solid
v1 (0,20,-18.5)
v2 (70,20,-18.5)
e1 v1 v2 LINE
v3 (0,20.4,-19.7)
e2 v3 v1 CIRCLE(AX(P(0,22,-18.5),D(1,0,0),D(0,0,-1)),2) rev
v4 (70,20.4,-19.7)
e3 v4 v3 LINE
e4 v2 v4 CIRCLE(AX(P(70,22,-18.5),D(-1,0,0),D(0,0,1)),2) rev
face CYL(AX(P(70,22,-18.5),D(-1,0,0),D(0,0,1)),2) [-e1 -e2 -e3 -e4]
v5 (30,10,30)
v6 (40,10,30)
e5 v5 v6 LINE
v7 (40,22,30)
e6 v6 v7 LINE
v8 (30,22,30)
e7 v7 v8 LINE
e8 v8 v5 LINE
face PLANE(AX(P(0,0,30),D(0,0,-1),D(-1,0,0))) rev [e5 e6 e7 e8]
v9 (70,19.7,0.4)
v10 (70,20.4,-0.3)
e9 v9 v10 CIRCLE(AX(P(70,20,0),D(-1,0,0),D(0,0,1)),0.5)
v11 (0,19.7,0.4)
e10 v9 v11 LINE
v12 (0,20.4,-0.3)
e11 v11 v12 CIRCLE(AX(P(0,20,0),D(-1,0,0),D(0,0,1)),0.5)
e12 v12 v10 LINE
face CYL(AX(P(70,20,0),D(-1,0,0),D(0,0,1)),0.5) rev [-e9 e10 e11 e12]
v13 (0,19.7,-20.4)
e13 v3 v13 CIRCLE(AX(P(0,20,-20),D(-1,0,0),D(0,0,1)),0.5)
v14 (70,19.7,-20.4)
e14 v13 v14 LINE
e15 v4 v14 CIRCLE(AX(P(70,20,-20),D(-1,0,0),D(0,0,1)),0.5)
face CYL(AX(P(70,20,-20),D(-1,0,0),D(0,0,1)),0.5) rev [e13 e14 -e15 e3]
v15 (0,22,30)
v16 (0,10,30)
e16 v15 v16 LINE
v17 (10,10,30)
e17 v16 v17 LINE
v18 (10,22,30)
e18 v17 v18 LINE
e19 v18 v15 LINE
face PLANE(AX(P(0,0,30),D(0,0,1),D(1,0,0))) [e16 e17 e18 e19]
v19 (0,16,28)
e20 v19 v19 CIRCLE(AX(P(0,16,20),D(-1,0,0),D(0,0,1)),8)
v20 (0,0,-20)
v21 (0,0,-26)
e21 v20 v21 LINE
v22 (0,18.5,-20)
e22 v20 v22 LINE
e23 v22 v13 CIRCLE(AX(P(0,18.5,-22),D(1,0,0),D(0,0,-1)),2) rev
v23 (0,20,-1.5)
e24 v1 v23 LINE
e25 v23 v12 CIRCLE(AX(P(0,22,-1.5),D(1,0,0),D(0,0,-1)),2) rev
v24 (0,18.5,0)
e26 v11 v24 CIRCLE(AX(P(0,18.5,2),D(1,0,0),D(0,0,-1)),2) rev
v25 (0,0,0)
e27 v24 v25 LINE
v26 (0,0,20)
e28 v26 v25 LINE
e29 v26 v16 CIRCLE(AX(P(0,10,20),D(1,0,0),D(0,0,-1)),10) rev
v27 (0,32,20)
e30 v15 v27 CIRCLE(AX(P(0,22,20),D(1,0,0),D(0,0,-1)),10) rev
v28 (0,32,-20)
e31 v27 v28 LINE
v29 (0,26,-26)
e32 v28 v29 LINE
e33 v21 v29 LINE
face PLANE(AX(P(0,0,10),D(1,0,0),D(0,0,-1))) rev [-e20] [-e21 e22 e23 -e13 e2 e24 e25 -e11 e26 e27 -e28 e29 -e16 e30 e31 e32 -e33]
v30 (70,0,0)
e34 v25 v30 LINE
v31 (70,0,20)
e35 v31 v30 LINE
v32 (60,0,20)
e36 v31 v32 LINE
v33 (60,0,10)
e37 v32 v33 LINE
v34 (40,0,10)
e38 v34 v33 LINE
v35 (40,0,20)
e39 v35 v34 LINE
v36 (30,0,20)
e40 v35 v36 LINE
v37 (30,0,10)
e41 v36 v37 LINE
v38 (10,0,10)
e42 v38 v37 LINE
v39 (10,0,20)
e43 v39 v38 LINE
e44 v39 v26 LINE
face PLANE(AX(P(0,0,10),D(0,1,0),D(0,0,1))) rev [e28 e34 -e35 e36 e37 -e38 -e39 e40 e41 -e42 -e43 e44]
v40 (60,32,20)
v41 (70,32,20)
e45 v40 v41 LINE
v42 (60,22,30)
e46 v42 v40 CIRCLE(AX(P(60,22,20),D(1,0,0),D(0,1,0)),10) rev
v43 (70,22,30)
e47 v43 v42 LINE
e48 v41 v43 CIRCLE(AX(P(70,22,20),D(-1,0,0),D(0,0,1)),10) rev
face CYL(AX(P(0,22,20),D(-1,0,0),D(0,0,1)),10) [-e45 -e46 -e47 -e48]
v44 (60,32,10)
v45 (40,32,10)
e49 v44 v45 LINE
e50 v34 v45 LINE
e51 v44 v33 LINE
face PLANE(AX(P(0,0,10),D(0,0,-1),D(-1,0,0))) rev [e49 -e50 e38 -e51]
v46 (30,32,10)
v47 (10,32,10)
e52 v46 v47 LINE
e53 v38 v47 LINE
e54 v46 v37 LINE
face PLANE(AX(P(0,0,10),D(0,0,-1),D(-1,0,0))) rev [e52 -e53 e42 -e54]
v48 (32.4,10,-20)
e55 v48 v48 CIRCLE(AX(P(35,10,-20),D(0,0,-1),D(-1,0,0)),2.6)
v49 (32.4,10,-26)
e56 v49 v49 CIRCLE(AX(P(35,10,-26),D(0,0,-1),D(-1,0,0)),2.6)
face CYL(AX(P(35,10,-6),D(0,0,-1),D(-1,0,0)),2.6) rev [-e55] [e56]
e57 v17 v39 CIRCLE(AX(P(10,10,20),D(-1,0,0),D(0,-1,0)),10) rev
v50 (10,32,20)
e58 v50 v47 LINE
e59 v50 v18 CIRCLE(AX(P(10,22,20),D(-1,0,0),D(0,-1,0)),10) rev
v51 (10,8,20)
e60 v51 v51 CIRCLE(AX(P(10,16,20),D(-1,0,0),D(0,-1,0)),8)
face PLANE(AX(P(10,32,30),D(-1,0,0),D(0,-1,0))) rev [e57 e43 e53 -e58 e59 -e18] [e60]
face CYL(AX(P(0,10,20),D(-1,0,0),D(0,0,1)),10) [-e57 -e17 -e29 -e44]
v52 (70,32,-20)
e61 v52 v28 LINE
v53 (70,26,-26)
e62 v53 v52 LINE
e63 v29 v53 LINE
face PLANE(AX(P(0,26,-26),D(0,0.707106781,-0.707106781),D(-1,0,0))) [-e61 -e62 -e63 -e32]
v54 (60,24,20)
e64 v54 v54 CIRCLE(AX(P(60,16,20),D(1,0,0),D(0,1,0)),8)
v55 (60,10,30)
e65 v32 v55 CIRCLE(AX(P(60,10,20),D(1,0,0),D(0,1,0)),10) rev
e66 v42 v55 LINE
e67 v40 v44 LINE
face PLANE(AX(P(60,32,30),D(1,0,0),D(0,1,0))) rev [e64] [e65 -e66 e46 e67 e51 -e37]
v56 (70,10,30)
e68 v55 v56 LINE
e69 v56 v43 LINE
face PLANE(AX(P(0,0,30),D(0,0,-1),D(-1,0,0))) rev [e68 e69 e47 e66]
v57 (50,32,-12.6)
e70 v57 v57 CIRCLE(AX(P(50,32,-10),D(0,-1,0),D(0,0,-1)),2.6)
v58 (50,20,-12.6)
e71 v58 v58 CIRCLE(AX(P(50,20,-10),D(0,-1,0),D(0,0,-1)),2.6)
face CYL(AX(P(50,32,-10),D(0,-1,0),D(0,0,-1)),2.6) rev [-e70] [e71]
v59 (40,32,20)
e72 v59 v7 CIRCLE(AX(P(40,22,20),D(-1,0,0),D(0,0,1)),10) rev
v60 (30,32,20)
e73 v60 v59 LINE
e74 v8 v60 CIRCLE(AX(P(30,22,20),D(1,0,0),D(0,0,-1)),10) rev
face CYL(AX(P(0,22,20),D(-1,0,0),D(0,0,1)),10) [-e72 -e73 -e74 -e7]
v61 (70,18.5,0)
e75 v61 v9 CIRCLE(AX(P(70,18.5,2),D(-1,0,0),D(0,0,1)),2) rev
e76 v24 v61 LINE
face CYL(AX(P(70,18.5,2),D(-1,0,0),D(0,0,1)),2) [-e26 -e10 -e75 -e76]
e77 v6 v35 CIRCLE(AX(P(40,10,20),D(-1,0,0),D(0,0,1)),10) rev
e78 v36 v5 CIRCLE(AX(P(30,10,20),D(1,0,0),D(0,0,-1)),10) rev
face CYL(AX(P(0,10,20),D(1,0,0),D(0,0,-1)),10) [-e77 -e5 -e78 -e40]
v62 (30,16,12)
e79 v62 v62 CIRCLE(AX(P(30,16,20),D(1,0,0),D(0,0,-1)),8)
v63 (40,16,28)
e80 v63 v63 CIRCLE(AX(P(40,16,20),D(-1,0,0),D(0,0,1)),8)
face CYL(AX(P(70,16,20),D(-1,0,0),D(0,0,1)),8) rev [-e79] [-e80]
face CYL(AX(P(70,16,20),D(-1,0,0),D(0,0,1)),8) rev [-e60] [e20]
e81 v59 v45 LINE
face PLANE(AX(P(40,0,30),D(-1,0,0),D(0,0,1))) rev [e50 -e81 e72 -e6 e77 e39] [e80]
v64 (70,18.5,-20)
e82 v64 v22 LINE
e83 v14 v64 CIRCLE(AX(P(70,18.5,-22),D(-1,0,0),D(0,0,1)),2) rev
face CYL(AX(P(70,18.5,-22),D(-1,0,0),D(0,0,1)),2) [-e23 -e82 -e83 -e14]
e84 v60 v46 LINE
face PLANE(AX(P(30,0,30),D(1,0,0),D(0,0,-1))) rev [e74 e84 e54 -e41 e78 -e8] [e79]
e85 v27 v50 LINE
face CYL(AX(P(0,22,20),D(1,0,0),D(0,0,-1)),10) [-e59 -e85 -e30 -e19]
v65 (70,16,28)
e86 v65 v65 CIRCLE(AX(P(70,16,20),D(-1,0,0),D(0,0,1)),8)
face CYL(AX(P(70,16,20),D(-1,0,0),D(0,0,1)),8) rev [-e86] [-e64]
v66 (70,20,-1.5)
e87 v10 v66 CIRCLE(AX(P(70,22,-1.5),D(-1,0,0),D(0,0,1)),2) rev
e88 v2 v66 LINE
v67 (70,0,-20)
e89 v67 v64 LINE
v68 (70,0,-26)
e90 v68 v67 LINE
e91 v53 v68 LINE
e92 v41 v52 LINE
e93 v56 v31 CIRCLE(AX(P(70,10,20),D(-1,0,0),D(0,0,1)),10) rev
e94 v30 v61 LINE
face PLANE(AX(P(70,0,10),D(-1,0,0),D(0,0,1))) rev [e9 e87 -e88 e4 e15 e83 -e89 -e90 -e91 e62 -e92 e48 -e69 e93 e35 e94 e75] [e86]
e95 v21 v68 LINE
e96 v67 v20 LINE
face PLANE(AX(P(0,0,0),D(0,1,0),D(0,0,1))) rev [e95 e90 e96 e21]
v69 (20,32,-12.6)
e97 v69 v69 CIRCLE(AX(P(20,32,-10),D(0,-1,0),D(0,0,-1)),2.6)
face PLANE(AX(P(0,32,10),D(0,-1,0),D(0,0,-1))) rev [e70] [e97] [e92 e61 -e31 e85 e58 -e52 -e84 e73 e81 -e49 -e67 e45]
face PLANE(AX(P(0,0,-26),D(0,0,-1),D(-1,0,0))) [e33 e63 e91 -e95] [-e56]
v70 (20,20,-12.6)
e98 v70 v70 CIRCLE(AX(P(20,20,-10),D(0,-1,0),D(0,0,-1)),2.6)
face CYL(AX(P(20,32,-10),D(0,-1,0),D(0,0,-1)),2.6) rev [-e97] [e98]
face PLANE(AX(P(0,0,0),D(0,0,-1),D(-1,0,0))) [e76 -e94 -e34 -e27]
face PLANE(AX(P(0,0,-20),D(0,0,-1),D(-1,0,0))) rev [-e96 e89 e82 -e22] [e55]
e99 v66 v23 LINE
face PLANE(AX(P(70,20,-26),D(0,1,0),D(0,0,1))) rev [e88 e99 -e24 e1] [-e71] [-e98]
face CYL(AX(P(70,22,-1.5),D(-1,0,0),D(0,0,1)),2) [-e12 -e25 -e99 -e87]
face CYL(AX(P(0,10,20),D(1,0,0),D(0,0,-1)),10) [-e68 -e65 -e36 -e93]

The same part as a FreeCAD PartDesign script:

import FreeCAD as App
import Part
import Sketcher
from FreeCAD import Vector


def edges_at(feature, points):
    """Names of the edges that pass closest to the given points."""
    edges = feature.Shape.Edges
    near = lambda p: min(range(len(edges)), key=lambda i: edges[i].distToShape(Part.Vertex(*p))[0])
    return sorted({f"Edge{near(p) + 1}" for p in points})

doc = App.newDocument("Part")
body = doc.addObject("PartDesign::Body", "Body")

# Sketch on XY plane
sketch1 = doc.addObject("Sketcher::SketchObject", "Sketch")
body.addObject(sketch1)
sketch1.AttachmentSupport = (doc.XY_Plane, [""])
sketch1.MapMode = "FlatFace"
sketch1.addGeometry(Part.LineSegment(Vector(0, 32, 0), Vector(0, 0, 0)), False)
sketch1.addGeometry(Part.LineSegment(Vector(0, 0, 0), Vector(70, 0, 0)), False)
sketch1.addGeometry(Part.LineSegment(Vector(70, 0, 0), Vector(70, 32, 0)), False)
sketch1.addGeometry(Part.LineSegment(Vector(70, 32, 0), Vector(0, 32, 0)), False)
sketch1.addConstraint(Sketcher.Constraint("Coincident", 0, 2, 1, 1))
sketch1.addConstraint(Sketcher.Constraint("Coincident", 1, 2, 2, 1))
sketch1.addConstraint(Sketcher.Constraint("Coincident", 2, 2, 3, 1))
sketch1.addConstraint(Sketcher.Constraint("Coincident", 3, 2, 0, 1))
sketch1.addConstraint(Sketcher.Constraint("Vertical", 0))
sketch1.addConstraint(Sketcher.Constraint("Horizontal", 1))
sketch1.addConstraint(Sketcher.Constraint("Vertical", 2))
sketch1.addConstraint(Sketcher.Constraint("Horizontal", 3))
sketch1.addConstraint(Sketcher.Constraint("Coincident", 0, 2, -1, 1))
sketch1.addConstraint(Sketcher.Constraint("DistanceX", 1, 1, 1, 2, 70.0))
sketch1.addConstraint(Sketcher.Constraint("DistanceY", 0, 2, 0, 1, 32.0))
pad1 = doc.addObject("PartDesign::Pad", "Pad")
body.addObject(pad1)
pad1.Profile = sketch1
pad1.Length = 10

# Sketch on XY plane
sketch2 = doc.addObject("Sketcher::SketchObject", "Sketch001")
body.addObject(sketch2)
sketch2.AttachmentSupport = (doc.XY_Plane, [""])
sketch2.MapMode = "FlatFace"
sketch2.AttachmentOffset = App.Placement(Vector(0, 0, 10), App.Rotation())
sketch2.addGeometry(Part.LineSegment(Vector(0, 32, 0), Vector(0, 0, 0)), False)
sketch2.addGeometry(Part.LineSegment(Vector(0, 0, 0), Vector(10, 0, 0)), False)
sketch2.addGeometry(Part.LineSegment(Vector(10, 0, 0), Vector(10, 32, 0)), False)
sketch2.addGeometry(Part.LineSegment(Vector(10, 32, 0), Vector(0, 32, 0)), False)
sketch2.addGeometry(Part.LineSegment(Vector(30, 32, 0), Vector(30, 0, 0)), False)
sketch2.addGeometry(Part.LineSegment(Vector(30, 0, 0), Vector(40, 0, 0)), False)
sketch2.addGeometry(Part.LineSegment(Vector(40, 0, 0), Vector(40, 32, 0)), False)
sketch2.addGeometry(Part.LineSegment(Vector(40, 32, 0), Vector(30, 32, 0)), False)
sketch2.addGeometry(Part.LineSegment(Vector(60, 32, 0), Vector(60, 0, 0)), False)
sketch2.addGeometry(Part.LineSegment(Vector(60, 0, 0), Vector(70, 0, 0)), False)
sketch2.addGeometry(Part.LineSegment(Vector(70, 0, 0), Vector(70, 32, 0)), False)
sketch2.addGeometry(Part.LineSegment(Vector(70, 32, 0), Vector(60, 32, 0)), False)
sketch2.addConstraint(Sketcher.Constraint("Coincident", 0, 2, 1, 1))
sketch2.addConstraint(Sketcher.Constraint("Coincident", 1, 2, 2, 1))
sketch2.addConstraint(Sketcher.Constraint("Coincident", 2, 2, 3, 1))
sketch2.addConstraint(Sketcher.Constraint("Coincident", 3, 2, 0, 1))
sketch2.addConstraint(Sketcher.Constraint("Coincident", 4, 2, 5, 1))
sketch2.addConstraint(Sketcher.Constraint("Coincident", 5, 2, 6, 1))
sketch2.addConstraint(Sketcher.Constraint("Coincident", 6, 2, 7, 1))
sketch2.addConstraint(Sketcher.Constraint("Coincident", 7, 2, 4, 1))
sketch2.addConstraint(Sketcher.Constraint("Coincident", 8, 2, 9, 1))
sketch2.addConstraint(Sketcher.Constraint("Coincident", 9, 2, 10, 1))
sketch2.addConstraint(Sketcher.Constraint("Coincident", 10, 2, 11, 1))
sketch2.addConstraint(Sketcher.Constraint("Coincident", 11, 2, 8, 1))
sketch2.addConstraint(Sketcher.Constraint("Vertical", 0))
sketch2.addConstraint(Sketcher.Constraint("Horizontal", 1))
sketch2.addConstraint(Sketcher.Constraint("Vertical", 2))
sketch2.addConstraint(Sketcher.Constraint("Horizontal", 3))
sketch2.addConstraint(Sketcher.Constraint("Vertical", 4))
sketch2.addConstraint(Sketcher.Constraint("Horizontal", 5))
sketch2.addConstraint(Sketcher.Constraint("Vertical", 6))
sketch2.addConstraint(Sketcher.Constraint("Horizontal", 7))
sketch2.addConstraint(Sketcher.Constraint("Vertical", 8))
sketch2.addConstraint(Sketcher.Constraint("Horizontal", 9))
sketch2.addConstraint(Sketcher.Constraint("Vertical", 10))
sketch2.addConstraint(Sketcher.Constraint("Horizontal", 11))
sketch2.addConstraint(Sketcher.Constraint("Coincident", 0, 2, -1, 1))
sketch2.addConstraint(Sketcher.Constraint("PointOnObject", 4, 2, -1))
sketch2.addConstraint(Sketcher.Constraint("PointOnObject", 8, 2, -1))
sketch2.addConstraint(Sketcher.Constraint("Horizontal", 3, 2, 6, 2))
sketch2.addConstraint(Sketcher.Constraint("Horizontal", 7, 2, 10, 2))
sketch2.addConstraint(Sketcher.Constraint("Equal", 3, 5))
sketch2.addConstraint(Sketcher.Constraint("Equal", 7, 9))
sketch2.addConstraint(Sketcher.Constraint("DistanceX", 1, 1, 1, 2, 10.0))
sketch2.addConstraint(Sketcher.Constraint("DistanceY", 0, 2, 0, 1, 32.0))
sketch2.addConstraint(Sketcher.Constraint("DistanceX", -1, 1, 4, 2, 30.0))
sketch2.addConstraint(Sketcher.Constraint("DistanceX", -1, 1, 8, 2, 60.0))
pad2 = doc.addObject("PartDesign::Pad", "Pad001")
body.addObject(pad2)
pad2.Profile = sketch2
pad2.Length = 20

# Sketch on XY plane
sketch3 = doc.addObject("Sketcher::SketchObject", "Sketch002")
body.addObject(sketch3)
sketch3.AttachmentSupport = (doc.XY_Plane, [""])
sketch3.MapMode = "FlatFace"
sketch3.addGeometry(Part.LineSegment(Vector(70, 32, 0), Vector(70, 20, 0)), False)
sketch3.addGeometry(Part.LineSegment(Vector(70, 20, 0), Vector(0, 20, 0)), False)
sketch3.addGeometry(Part.LineSegment(Vector(0, 20, 0), Vector(0, 32, 0)), False)
sketch3.addGeometry(Part.LineSegment(Vector(0, 32, 0), Vector(70, 32, 0)), False)
sketch3.addConstraint(Sketcher.Constraint("Coincident", 0, 2, 1, 1))
sketch3.addConstraint(Sketcher.Constraint("Coincident", 1, 2, 2, 1))
sketch3.addConstraint(Sketcher.Constraint("Coincident", 2, 2, 3, 1))
sketch3.addConstraint(Sketcher.Constraint("Coincident", 3, 2, 0, 1))
sketch3.addConstraint(Sketcher.Constraint("Vertical", 0))
sketch3.addConstraint(Sketcher.Constraint("Horizontal", 1))
sketch3.addConstraint(Sketcher.Constraint("Vertical", 2))
sketch3.addConstraint(Sketcher.Constraint("Horizontal", 3))
sketch3.addConstraint(Sketcher.Constraint("PointOnObject", 1, 2, -2))
sketch3.addConstraint(Sketcher.Constraint("DistanceX", 1, 2, 1, 1, 70.0))
sketch3.addConstraint(Sketcher.Constraint("DistanceY", 0, 2, 0, 1, 12.0))
sketch3.addConstraint(Sketcher.Constraint("DistanceY", -1, 1, 0, 2, 20.0))
pad3 = doc.addObject("PartDesign::Pad", "Pad002")
body.addObject(pad3)
pad3.Profile = sketch3
pad3.Length = 26
pad3.Reversed = True

# Sketch on XZ plane
sketch4 = doc.addObject("Sketcher::SketchObject", "Sketch003")
body.addObject(sketch4)
sketch4.AttachmentSupport = (doc.XZ_Plane, [""])
sketch4.MapMode = "FlatFace"
sketch4.AttachmentOffset = App.Placement(Vector(0, 0, -20), App.Rotation())
sketch4.addGeometry(Part.LineSegment(Vector(0, -20, 0), Vector(0, -26, 0)), False)
sketch4.addGeometry(Part.LineSegment(Vector(0, -26, 0), Vector(70, -26, 0)), False)
sketch4.addGeometry(Part.LineSegment(Vector(70, -26, 0), Vector(70, -20, 0)), False)
sketch4.addGeometry(Part.LineSegment(Vector(70, -20, 0), Vector(0, -20, 0)), False)
sketch4.addConstraint(Sketcher.Constraint("Coincident", 0, 2, 1, 1))
sketch4.addConstraint(Sketcher.Constraint("Coincident", 1, 2, 2, 1))
sketch4.addConstraint(Sketcher.Constraint("Coincident", 2, 2, 3, 1))
sketch4.addConstraint(Sketcher.Constraint("Coincident", 3, 2, 0, 1))
sketch4.addConstraint(Sketcher.Constraint("Vertical", 0))
sketch4.addConstraint(Sketcher.Constraint("Horizontal", 1))
sketch4.addConstraint(Sketcher.Constraint("Vertical", 2))
sketch4.addConstraint(Sketcher.Constraint("Horizontal", 3))
sketch4.addConstraint(Sketcher.Constraint("PointOnObject", 0, 2, -2))
sketch4.addConstraint(Sketcher.Constraint("DistanceX", 1, 1, 1, 2, 70.0))
sketch4.addConstraint(Sketcher.Constraint("DistanceY", 0, 2, 0, 1, 6.0))
sketch4.addConstraint(Sketcher.Constraint("DistanceY", 0, 2, -1, 1, 26.0))
pad4 = doc.addObject("PartDesign::Pad", "Pad003")
body.addObject(pad4)
pad4.Profile = sketch4
pad4.Length = 20

# Sketch on YZ plane
sketch5 = doc.addObject("Sketcher::SketchObject", "Sketch004")
body.addObject(sketch5)
sketch5.AttachmentSupport = (doc.YZ_Plane, [""])
sketch5.MapMode = "FlatFace"
sketch5.addGeometry(Part.Circle(Vector(20, -20, 0), Vector(0, 0, 1), 0.5), False)
sketch5.addGeometry(Part.Circle(Vector(20, 0, 0), Vector(0, 0, 1), 0.5), False)
sketch5.addConstraint(Sketcher.Constraint("Equal", 0, 1))
sketch5.addConstraint(Sketcher.Constraint("PointOnObject", 1, 3, -1))
sketch5.addConstraint(Sketcher.Constraint("Vertical", 0, 3, 1, 3))
sketch5.addConstraint(Sketcher.Constraint("Diameter", 0, 1.0))
sketch5.addConstraint(Sketcher.Constraint("DistanceX", -1, 1, 0, 3, 20.0))
sketch5.addConstraint(Sketcher.Constraint("DistanceY", 0, 3, -1, 1, 20.0))
pocket1 = doc.addObject("PartDesign::Pocket", "Pocket")
body.addObject(pocket1)
pocket1.Profile = sketch5
pocket1.Type = "ThroughAll"
pocket1.Reversed = True
doc.recompute()

fillet = doc.addObject("PartDesign::Fillet", "Fillet")
body.addObject(fillet)
fillet.Base = (pocket1, edges_at(pocket1, [
    (35, 19.5, -20),
    (35, 19.5, 0),
    (35, 20, -19.5),
    (35, 20, -0.5),
]))
fillet.Radius = 2

# Sketch on YZ plane
sketch6 = doc.addObject("Sketcher::SketchObject", "Sketch005")
body.addObject(sketch6)
sketch6.AttachmentSupport = (doc.YZ_Plane, [""])
sketch6.MapMode = "FlatFace"
sketch6.addGeometry(Part.Circle(Vector(16, 20, 0), Vector(0, 0, 1), 8), False)
sketch6.addConstraint(Sketcher.Constraint("Diameter", 0, 16.0))
sketch6.addConstraint(Sketcher.Constraint("DistanceX", -1, 1, 0, 3, 16.0))
sketch6.addConstraint(Sketcher.Constraint("DistanceY", -1, 1, 0, 3, 20.0))
pocket2 = doc.addObject("PartDesign::Pocket", "Pocket001")
body.addObject(pocket2)
pocket2.Profile = sketch6
pocket2.Type = "ThroughAll"
pocket2.Reversed = True
doc.recompute()

fillet2 = doc.addObject("PartDesign::Fillet", "Fillet001")
body.addObject(fillet2)
fillet2.Base = (pocket2, edges_at(pocket2, [
    (5, 0, 30),
    (5, 32, 30),
    (35, 0, 30),
    (35, 32, 30),
    (65, 32, 30),
    (65, 0, 30),
]))
fillet2.Radius = 10

# Sketch on XZ plane
sketch7 = doc.addObject("Sketcher::SketchObject", "Sketch006")
body.addObject(sketch7)
sketch7.AttachmentSupport = (doc.XZ_Plane, [""])
sketch7.MapMode = "FlatFace"
sketch7.AttachmentOffset = App.Placement(Vector(0, 0, -20), App.Rotation())
sketch7.addGeometry(Part.Circle(Vector(20, -10, 0), Vector(0, 0, 1), 2.6), False)
sketch7.addGeometry(Part.Circle(Vector(50, -10, 0), Vector(0, 0, 1), 2.6), False)
sketch7.addConstraint(Sketcher.Constraint("Equal", 0, 1))
sketch7.addConstraint(Sketcher.Constraint("Horizontal", 0, 3, 1, 3))
sketch7.addConstraint(Sketcher.Constraint("Diameter", 0, 5.2))
sketch7.addConstraint(Sketcher.Constraint("DistanceX", -1, 1, 0, 3, 20.0))
sketch7.addConstraint(Sketcher.Constraint("DistanceY", 0, 3, -1, 1, 10.0))
sketch7.addConstraint(Sketcher.Constraint("DistanceX", -1, 1, 1, 3, 50.0))
pocket3 = doc.addObject("PartDesign::Pocket", "Pocket002")
body.addObject(pocket3)
pocket3.Profile = sketch7
pocket3.Type = "ThroughAll"

# Sketch on XY plane
sketch8 = doc.addObject("Sketcher::SketchObject", "Sketch007")
body.addObject(sketch8)
sketch8.AttachmentSupport = (doc.XY_Plane, [""])
sketch8.MapMode = "FlatFace"
sketch8.AttachmentOffset = App.Placement(Vector(0, 0, -26), App.Rotation())
sketch8.addGeometry(Part.Circle(Vector(35, 10, 0), Vector(0, 0, 1), 2.6), False)
sketch8.addConstraint(Sketcher.Constraint("Diameter", 0, 5.2))
sketch8.addConstraint(Sketcher.Constraint("DistanceX", -1, 1, 0, 3, 35.0))
sketch8.addConstraint(Sketcher.Constraint("DistanceY", -1, 1, 0, 3, 10.0))
pocket4 = doc.addObject("PartDesign::Pocket", "Pocket003")
body.addObject(pocket4)
pocket4.Profile = sketch8
pocket4.Length = 20
pocket4.Reversed = True
doc.recompute()

chamfer = doc.addObject("PartDesign::Chamfer", "Chamfer")
body.addObject(chamfer)
chamfer.Base = (pocket4, edges_at(pocket4, [(35, 32, -26)]))
chamfer.Size = 6

doc.recompute()
